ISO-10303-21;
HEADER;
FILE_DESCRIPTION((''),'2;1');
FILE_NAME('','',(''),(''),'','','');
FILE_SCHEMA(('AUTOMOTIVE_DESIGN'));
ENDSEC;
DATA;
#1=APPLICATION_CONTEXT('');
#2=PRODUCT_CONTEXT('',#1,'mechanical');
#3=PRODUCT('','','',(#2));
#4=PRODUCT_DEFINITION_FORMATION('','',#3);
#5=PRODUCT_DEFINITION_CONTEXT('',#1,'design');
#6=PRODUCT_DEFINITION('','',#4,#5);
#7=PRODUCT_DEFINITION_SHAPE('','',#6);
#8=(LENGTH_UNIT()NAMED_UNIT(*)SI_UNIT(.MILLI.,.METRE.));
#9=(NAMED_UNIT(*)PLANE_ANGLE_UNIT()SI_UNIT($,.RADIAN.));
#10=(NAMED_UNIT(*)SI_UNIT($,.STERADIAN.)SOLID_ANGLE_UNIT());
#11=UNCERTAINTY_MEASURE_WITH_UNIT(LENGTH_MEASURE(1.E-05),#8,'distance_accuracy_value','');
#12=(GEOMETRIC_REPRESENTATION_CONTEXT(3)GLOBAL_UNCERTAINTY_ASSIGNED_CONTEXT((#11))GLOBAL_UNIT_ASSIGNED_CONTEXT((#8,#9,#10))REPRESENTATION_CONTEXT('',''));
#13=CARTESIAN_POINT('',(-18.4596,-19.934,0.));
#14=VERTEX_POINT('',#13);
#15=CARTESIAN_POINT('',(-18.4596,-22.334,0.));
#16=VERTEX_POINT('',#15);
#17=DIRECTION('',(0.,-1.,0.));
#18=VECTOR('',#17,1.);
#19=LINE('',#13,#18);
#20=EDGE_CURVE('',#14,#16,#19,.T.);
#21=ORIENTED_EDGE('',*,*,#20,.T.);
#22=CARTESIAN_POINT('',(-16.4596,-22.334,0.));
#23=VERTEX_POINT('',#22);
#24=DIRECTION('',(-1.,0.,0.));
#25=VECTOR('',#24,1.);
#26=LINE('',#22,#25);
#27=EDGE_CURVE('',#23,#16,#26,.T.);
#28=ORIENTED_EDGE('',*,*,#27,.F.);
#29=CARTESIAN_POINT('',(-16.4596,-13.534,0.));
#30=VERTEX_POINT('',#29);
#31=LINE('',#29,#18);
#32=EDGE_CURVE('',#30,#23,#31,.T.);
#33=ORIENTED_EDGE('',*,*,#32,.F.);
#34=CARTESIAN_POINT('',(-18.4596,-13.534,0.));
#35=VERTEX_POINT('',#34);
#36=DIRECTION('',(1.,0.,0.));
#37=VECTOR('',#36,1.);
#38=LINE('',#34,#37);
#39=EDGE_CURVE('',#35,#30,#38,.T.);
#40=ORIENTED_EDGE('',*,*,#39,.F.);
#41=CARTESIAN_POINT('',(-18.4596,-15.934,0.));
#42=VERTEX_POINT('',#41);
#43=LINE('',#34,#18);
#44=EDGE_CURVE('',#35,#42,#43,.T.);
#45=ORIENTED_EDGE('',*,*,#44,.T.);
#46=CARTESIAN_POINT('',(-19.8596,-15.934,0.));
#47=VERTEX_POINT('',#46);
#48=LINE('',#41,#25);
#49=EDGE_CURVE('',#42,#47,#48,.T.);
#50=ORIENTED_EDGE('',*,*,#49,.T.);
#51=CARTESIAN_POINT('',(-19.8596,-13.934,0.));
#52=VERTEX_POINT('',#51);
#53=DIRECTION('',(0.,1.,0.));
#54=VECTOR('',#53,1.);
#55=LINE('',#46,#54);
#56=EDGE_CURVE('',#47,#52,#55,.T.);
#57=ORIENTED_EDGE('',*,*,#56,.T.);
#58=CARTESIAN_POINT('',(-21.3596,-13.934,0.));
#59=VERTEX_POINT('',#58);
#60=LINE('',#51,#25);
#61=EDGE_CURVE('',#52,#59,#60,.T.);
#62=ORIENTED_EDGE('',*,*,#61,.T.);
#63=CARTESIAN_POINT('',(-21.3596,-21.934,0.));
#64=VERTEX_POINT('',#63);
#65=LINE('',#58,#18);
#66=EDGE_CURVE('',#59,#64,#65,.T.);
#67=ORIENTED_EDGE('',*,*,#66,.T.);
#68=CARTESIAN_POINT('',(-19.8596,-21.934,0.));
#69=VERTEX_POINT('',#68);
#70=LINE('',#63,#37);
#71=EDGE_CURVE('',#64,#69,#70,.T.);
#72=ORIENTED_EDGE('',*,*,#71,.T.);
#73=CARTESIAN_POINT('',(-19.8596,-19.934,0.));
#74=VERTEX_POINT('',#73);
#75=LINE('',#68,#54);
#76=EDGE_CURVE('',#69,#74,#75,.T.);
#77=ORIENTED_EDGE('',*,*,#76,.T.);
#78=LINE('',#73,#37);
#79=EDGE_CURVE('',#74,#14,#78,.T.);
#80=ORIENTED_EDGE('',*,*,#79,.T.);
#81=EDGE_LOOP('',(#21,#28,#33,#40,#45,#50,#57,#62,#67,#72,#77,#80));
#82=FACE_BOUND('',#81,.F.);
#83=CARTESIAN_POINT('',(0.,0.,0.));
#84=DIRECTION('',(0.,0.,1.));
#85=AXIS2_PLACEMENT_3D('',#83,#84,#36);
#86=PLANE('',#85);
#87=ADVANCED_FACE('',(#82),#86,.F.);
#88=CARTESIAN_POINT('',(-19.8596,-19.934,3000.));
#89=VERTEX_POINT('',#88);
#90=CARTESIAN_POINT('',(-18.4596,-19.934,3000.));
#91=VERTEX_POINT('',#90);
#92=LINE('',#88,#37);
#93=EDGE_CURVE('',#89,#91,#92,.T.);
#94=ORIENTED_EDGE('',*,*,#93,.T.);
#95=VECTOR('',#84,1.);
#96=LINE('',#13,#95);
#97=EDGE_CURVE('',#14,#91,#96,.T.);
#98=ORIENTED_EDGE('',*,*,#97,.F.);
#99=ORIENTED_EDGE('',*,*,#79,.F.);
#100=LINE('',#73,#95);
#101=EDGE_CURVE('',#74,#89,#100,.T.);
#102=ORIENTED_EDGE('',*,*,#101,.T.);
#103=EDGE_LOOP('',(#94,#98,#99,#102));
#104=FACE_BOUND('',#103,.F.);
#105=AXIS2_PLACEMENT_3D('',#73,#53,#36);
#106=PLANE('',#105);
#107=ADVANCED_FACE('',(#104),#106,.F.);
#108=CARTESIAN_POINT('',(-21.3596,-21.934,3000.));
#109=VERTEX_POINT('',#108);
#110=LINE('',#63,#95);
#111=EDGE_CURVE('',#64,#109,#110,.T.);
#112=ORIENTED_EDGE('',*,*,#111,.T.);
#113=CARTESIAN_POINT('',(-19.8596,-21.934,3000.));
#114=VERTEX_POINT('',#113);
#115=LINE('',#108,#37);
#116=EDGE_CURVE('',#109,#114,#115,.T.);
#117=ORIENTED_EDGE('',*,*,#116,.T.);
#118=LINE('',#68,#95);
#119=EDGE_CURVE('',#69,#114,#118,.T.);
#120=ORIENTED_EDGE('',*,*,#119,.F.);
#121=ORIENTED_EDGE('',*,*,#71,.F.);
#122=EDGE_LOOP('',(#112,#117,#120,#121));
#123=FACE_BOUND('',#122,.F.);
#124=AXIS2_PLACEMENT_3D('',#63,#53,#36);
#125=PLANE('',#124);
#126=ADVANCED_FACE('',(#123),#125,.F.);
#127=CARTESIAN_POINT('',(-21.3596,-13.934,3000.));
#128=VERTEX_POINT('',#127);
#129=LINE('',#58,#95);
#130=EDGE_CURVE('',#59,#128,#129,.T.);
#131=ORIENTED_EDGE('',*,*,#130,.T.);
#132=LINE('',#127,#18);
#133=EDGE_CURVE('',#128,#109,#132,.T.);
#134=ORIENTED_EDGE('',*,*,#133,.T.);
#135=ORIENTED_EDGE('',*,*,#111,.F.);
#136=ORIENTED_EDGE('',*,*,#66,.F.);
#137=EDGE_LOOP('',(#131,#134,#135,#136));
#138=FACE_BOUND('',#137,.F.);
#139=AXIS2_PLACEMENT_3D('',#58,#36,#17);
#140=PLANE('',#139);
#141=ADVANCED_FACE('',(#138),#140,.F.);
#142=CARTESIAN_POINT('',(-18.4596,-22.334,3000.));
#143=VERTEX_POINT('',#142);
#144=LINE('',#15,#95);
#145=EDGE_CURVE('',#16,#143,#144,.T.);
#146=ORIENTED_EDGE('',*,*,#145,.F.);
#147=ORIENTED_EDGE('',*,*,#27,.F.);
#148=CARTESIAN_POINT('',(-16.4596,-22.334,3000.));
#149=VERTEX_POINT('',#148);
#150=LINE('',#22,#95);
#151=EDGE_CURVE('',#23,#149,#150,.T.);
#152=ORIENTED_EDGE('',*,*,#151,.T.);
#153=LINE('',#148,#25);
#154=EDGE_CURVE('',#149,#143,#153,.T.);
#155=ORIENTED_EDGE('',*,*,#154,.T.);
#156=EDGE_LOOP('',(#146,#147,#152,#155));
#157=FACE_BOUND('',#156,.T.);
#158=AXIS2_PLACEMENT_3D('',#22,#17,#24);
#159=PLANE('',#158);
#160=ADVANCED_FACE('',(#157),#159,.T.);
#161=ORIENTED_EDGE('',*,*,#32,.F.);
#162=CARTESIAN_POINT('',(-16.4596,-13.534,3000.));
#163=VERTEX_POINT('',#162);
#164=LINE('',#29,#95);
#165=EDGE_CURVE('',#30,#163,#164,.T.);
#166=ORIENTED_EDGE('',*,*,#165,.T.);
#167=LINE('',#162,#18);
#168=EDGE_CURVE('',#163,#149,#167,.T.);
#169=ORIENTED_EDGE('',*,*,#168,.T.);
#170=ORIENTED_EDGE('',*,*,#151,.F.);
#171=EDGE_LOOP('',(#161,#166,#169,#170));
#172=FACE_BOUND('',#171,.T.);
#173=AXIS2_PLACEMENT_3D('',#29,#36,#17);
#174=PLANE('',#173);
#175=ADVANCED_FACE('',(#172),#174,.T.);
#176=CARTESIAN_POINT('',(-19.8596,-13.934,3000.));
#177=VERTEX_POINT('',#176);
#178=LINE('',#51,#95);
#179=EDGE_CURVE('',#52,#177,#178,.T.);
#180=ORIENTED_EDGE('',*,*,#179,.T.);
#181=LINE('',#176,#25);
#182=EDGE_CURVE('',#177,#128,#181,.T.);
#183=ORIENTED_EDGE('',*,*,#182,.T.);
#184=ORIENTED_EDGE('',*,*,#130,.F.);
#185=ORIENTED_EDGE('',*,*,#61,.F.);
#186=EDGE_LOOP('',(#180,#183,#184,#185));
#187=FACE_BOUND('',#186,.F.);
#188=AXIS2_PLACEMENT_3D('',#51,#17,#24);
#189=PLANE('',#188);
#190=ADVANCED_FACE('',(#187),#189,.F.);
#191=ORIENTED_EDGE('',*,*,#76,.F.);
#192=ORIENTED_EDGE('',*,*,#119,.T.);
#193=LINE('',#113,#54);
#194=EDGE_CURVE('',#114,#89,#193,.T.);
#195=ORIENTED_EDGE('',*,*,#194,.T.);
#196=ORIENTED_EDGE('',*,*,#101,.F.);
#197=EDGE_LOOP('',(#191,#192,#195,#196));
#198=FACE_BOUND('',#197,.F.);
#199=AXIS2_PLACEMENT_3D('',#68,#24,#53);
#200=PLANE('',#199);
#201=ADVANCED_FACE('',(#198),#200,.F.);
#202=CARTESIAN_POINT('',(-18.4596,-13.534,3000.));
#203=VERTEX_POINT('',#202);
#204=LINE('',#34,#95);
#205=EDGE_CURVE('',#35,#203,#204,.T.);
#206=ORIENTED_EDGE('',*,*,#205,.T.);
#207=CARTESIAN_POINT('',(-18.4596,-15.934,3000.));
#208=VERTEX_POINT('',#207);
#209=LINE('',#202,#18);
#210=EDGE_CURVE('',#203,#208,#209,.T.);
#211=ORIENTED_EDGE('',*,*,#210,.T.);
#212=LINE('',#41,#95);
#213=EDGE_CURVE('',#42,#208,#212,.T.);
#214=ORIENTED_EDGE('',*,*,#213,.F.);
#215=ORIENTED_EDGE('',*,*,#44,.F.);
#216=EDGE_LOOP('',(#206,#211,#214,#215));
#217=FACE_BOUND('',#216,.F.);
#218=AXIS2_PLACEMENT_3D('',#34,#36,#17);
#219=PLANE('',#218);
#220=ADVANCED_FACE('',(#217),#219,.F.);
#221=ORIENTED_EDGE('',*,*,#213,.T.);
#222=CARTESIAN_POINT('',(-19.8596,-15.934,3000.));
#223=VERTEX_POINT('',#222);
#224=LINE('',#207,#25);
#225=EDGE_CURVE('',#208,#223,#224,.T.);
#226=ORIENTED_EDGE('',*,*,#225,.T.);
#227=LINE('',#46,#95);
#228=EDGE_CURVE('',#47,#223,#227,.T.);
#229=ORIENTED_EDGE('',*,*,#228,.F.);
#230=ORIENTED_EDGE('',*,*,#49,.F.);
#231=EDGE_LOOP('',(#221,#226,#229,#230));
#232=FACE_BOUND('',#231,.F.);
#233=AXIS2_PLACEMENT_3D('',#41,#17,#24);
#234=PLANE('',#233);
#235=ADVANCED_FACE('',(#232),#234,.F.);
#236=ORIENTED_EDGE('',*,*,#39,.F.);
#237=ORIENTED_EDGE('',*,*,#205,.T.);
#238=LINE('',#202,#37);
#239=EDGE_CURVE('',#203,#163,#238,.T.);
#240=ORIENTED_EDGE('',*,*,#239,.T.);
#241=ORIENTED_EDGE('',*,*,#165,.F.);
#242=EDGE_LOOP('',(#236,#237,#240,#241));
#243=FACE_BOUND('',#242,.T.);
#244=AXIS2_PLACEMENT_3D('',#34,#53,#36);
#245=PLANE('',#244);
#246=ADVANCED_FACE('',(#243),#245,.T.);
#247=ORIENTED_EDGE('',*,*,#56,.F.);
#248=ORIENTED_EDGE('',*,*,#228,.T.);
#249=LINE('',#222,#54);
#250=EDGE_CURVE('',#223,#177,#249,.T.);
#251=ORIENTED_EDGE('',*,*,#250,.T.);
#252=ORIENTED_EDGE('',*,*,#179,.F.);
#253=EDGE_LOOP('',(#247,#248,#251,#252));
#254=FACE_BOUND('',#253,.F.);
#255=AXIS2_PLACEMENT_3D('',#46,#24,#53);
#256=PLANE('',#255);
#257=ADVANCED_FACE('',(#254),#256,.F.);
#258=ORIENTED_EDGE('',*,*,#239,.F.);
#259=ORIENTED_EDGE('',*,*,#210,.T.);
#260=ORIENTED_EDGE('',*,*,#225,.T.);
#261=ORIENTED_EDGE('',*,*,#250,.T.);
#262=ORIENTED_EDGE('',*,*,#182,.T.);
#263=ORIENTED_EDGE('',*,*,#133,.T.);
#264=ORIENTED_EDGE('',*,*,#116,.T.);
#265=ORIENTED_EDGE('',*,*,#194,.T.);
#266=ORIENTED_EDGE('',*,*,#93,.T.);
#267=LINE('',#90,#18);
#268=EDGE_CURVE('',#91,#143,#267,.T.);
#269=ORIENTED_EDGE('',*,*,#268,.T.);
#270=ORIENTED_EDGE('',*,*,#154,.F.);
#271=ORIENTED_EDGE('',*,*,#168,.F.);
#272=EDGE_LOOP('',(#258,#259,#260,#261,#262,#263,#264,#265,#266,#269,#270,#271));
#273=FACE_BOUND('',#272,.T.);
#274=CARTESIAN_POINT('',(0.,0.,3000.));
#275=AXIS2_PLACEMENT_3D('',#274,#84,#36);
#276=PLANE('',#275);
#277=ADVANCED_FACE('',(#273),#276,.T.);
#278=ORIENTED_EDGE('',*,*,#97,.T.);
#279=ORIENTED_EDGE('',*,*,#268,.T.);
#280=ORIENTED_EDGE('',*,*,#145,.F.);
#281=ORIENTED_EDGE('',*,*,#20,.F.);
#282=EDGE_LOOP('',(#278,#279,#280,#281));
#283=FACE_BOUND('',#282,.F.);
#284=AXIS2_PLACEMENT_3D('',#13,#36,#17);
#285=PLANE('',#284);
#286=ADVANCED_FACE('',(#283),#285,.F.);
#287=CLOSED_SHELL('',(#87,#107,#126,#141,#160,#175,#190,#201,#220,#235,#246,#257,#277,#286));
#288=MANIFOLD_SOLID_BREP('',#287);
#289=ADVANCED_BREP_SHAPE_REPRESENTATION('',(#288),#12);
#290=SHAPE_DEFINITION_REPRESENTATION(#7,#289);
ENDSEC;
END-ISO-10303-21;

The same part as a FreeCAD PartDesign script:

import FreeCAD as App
import Part
import Sketcher

V = App.Vector

doc = App.newDocument("Part")
body = doc.addObject("PartDesign::Body", "Body")

# Sketch on XY plane
sketch1 = doc.addObject("Sketcher::SketchObject", "Sketch")
body.addObject(sketch1)
sketch1.AttachmentSupport = (doc.XY_Plane, [""])
sketch1.MapMode = "FlatFace"
sketch1.addGeometry([
    Part.LineSegment(V(-16.4596, -13.534, 0), V(-18.4596, -13.534, 0)),  # 0
    Part.LineSegment(V(-18.4596, -13.534, 0), V(-18.4596, -15.934, 0)),  # 1
    Part.LineSegment(V(-18.4596, -15.934, 0), V(-19.8596, -15.934, 0)),  # 2
    Part.LineSegment(V(-19.8596, -15.934, 0), V(-19.8596, -13.934, 0)),  # 3
    Part.LineSegment(V(-19.8596, -13.934, 0), V(-21.3596, -13.934, 0)),  # 4
    Part.LineSegment(V(-21.3596, -13.934, 0), V(-21.3596, -21.934, 0)),  # 5
    Part.LineSegment(V(-21.3596, -21.934, 0), V(-19.8596, -21.934, 0)),  # 6
    Part.LineSegment(V(-19.8596, -21.934, 0), V(-19.8596, -19.934, 0)),  # 7
    Part.LineSegment(V(-19.8596, -19.934, 0), V(-18.4596, -19.934, 0)),  # 8
    Part.LineSegment(V(-18.4596, -19.934, 0), V(-18.4596, -22.334, 0)),  # 9
    Part.LineSegment(V(-18.4596, -22.334, 0), V(-16.4596, -22.334, 0)),  # 10
    Part.LineSegment(V(-16.4596, -22.334, 0), V(-16.4596, -13.534, 0)),  # 11
], False)
sketch1.addConstraint([
    Sketcher.Constraint("Coincident", 0, 2, 1, 1),
    Sketcher.Constraint("Coincident", 1, 2, 2, 1),
    Sketcher.Constraint("Coincident", 2, 2, 3, 1),
    Sketcher.Constraint("Coincident", 3, 2, 4, 1),
    Sketcher.Constraint("Coincident", 4, 2, 5, 1),
    Sketcher.Constraint("Coincident", 5, 2, 6, 1),
    Sketcher.Constraint("Coincident", 6, 2, 7, 1),
    Sketcher.Constraint("Coincident", 7, 2, 8, 1),
    Sketcher.Constraint("Coincident", 8, 2, 9, 1),
    Sketcher.Constraint("Coincident", 9, 2, 10, 1),
    Sketcher.Constraint("Coincident", 10, 2, 11, 1),
    Sketcher.Constraint("Coincident", 11, 2, 0, 1),
    Sketcher.Constraint("Horizontal", 0),
    Sketcher.Constraint("Vertical", 1),
    Sketcher.Constraint("Horizontal", 2),
    Sketcher.Constraint("Vertical", 3),
    Sketcher.Constraint("Horizontal", 4),
    Sketcher.Constraint("Vertical", 5),
    Sketcher.Constraint("Horizontal", 6),
    Sketcher.Constraint("Vertical", 7),
    Sketcher.Constraint("Horizontal", 8),
    Sketcher.Constraint("Vertical", 9),
    Sketcher.Constraint("Horizontal", 10),
    Sketcher.Constraint("Vertical", 11),
    Sketcher.Constraint("Vertical", 3, 2, 6, 2),
    Sketcher.Constraint("Vertical", 1, 2, 8, 2),
    Sketcher.Constraint("Equal", 10, 3),
    Sketcher.Constraint("Equal", 3, 7),
    Sketcher.Constraint("Equal", 1, 9),
    Sketcher.Constraint("DistanceX", 0, 2, 0, 1, 2.0),
    Sketcher.Constraint("DistanceY", 5, 2, 5, 1, 8.0),
    Sketcher.Constraint("DistanceX", 2, 2, 2, 1, 1.4),
    Sketcher.Constraint("DistanceX", 4, 2, 4, 1, 1.5),
    Sketcher.Constraint("DistanceY", 11, 1, 11, 2, 8.8),
    Sketcher.Constraint("DistanceY", 0, 2, -1, 1, 13.534),
    Sketcher.Constraint("DistanceX", 0, 2, -1, 1, 18.4596),
])
pad1 = doc.addObject("PartDesign::Pad", "Pad")
body.addObject(pad1)
pad1.Profile = sketch1
pad1.Length = 3000

doc.recompute()
